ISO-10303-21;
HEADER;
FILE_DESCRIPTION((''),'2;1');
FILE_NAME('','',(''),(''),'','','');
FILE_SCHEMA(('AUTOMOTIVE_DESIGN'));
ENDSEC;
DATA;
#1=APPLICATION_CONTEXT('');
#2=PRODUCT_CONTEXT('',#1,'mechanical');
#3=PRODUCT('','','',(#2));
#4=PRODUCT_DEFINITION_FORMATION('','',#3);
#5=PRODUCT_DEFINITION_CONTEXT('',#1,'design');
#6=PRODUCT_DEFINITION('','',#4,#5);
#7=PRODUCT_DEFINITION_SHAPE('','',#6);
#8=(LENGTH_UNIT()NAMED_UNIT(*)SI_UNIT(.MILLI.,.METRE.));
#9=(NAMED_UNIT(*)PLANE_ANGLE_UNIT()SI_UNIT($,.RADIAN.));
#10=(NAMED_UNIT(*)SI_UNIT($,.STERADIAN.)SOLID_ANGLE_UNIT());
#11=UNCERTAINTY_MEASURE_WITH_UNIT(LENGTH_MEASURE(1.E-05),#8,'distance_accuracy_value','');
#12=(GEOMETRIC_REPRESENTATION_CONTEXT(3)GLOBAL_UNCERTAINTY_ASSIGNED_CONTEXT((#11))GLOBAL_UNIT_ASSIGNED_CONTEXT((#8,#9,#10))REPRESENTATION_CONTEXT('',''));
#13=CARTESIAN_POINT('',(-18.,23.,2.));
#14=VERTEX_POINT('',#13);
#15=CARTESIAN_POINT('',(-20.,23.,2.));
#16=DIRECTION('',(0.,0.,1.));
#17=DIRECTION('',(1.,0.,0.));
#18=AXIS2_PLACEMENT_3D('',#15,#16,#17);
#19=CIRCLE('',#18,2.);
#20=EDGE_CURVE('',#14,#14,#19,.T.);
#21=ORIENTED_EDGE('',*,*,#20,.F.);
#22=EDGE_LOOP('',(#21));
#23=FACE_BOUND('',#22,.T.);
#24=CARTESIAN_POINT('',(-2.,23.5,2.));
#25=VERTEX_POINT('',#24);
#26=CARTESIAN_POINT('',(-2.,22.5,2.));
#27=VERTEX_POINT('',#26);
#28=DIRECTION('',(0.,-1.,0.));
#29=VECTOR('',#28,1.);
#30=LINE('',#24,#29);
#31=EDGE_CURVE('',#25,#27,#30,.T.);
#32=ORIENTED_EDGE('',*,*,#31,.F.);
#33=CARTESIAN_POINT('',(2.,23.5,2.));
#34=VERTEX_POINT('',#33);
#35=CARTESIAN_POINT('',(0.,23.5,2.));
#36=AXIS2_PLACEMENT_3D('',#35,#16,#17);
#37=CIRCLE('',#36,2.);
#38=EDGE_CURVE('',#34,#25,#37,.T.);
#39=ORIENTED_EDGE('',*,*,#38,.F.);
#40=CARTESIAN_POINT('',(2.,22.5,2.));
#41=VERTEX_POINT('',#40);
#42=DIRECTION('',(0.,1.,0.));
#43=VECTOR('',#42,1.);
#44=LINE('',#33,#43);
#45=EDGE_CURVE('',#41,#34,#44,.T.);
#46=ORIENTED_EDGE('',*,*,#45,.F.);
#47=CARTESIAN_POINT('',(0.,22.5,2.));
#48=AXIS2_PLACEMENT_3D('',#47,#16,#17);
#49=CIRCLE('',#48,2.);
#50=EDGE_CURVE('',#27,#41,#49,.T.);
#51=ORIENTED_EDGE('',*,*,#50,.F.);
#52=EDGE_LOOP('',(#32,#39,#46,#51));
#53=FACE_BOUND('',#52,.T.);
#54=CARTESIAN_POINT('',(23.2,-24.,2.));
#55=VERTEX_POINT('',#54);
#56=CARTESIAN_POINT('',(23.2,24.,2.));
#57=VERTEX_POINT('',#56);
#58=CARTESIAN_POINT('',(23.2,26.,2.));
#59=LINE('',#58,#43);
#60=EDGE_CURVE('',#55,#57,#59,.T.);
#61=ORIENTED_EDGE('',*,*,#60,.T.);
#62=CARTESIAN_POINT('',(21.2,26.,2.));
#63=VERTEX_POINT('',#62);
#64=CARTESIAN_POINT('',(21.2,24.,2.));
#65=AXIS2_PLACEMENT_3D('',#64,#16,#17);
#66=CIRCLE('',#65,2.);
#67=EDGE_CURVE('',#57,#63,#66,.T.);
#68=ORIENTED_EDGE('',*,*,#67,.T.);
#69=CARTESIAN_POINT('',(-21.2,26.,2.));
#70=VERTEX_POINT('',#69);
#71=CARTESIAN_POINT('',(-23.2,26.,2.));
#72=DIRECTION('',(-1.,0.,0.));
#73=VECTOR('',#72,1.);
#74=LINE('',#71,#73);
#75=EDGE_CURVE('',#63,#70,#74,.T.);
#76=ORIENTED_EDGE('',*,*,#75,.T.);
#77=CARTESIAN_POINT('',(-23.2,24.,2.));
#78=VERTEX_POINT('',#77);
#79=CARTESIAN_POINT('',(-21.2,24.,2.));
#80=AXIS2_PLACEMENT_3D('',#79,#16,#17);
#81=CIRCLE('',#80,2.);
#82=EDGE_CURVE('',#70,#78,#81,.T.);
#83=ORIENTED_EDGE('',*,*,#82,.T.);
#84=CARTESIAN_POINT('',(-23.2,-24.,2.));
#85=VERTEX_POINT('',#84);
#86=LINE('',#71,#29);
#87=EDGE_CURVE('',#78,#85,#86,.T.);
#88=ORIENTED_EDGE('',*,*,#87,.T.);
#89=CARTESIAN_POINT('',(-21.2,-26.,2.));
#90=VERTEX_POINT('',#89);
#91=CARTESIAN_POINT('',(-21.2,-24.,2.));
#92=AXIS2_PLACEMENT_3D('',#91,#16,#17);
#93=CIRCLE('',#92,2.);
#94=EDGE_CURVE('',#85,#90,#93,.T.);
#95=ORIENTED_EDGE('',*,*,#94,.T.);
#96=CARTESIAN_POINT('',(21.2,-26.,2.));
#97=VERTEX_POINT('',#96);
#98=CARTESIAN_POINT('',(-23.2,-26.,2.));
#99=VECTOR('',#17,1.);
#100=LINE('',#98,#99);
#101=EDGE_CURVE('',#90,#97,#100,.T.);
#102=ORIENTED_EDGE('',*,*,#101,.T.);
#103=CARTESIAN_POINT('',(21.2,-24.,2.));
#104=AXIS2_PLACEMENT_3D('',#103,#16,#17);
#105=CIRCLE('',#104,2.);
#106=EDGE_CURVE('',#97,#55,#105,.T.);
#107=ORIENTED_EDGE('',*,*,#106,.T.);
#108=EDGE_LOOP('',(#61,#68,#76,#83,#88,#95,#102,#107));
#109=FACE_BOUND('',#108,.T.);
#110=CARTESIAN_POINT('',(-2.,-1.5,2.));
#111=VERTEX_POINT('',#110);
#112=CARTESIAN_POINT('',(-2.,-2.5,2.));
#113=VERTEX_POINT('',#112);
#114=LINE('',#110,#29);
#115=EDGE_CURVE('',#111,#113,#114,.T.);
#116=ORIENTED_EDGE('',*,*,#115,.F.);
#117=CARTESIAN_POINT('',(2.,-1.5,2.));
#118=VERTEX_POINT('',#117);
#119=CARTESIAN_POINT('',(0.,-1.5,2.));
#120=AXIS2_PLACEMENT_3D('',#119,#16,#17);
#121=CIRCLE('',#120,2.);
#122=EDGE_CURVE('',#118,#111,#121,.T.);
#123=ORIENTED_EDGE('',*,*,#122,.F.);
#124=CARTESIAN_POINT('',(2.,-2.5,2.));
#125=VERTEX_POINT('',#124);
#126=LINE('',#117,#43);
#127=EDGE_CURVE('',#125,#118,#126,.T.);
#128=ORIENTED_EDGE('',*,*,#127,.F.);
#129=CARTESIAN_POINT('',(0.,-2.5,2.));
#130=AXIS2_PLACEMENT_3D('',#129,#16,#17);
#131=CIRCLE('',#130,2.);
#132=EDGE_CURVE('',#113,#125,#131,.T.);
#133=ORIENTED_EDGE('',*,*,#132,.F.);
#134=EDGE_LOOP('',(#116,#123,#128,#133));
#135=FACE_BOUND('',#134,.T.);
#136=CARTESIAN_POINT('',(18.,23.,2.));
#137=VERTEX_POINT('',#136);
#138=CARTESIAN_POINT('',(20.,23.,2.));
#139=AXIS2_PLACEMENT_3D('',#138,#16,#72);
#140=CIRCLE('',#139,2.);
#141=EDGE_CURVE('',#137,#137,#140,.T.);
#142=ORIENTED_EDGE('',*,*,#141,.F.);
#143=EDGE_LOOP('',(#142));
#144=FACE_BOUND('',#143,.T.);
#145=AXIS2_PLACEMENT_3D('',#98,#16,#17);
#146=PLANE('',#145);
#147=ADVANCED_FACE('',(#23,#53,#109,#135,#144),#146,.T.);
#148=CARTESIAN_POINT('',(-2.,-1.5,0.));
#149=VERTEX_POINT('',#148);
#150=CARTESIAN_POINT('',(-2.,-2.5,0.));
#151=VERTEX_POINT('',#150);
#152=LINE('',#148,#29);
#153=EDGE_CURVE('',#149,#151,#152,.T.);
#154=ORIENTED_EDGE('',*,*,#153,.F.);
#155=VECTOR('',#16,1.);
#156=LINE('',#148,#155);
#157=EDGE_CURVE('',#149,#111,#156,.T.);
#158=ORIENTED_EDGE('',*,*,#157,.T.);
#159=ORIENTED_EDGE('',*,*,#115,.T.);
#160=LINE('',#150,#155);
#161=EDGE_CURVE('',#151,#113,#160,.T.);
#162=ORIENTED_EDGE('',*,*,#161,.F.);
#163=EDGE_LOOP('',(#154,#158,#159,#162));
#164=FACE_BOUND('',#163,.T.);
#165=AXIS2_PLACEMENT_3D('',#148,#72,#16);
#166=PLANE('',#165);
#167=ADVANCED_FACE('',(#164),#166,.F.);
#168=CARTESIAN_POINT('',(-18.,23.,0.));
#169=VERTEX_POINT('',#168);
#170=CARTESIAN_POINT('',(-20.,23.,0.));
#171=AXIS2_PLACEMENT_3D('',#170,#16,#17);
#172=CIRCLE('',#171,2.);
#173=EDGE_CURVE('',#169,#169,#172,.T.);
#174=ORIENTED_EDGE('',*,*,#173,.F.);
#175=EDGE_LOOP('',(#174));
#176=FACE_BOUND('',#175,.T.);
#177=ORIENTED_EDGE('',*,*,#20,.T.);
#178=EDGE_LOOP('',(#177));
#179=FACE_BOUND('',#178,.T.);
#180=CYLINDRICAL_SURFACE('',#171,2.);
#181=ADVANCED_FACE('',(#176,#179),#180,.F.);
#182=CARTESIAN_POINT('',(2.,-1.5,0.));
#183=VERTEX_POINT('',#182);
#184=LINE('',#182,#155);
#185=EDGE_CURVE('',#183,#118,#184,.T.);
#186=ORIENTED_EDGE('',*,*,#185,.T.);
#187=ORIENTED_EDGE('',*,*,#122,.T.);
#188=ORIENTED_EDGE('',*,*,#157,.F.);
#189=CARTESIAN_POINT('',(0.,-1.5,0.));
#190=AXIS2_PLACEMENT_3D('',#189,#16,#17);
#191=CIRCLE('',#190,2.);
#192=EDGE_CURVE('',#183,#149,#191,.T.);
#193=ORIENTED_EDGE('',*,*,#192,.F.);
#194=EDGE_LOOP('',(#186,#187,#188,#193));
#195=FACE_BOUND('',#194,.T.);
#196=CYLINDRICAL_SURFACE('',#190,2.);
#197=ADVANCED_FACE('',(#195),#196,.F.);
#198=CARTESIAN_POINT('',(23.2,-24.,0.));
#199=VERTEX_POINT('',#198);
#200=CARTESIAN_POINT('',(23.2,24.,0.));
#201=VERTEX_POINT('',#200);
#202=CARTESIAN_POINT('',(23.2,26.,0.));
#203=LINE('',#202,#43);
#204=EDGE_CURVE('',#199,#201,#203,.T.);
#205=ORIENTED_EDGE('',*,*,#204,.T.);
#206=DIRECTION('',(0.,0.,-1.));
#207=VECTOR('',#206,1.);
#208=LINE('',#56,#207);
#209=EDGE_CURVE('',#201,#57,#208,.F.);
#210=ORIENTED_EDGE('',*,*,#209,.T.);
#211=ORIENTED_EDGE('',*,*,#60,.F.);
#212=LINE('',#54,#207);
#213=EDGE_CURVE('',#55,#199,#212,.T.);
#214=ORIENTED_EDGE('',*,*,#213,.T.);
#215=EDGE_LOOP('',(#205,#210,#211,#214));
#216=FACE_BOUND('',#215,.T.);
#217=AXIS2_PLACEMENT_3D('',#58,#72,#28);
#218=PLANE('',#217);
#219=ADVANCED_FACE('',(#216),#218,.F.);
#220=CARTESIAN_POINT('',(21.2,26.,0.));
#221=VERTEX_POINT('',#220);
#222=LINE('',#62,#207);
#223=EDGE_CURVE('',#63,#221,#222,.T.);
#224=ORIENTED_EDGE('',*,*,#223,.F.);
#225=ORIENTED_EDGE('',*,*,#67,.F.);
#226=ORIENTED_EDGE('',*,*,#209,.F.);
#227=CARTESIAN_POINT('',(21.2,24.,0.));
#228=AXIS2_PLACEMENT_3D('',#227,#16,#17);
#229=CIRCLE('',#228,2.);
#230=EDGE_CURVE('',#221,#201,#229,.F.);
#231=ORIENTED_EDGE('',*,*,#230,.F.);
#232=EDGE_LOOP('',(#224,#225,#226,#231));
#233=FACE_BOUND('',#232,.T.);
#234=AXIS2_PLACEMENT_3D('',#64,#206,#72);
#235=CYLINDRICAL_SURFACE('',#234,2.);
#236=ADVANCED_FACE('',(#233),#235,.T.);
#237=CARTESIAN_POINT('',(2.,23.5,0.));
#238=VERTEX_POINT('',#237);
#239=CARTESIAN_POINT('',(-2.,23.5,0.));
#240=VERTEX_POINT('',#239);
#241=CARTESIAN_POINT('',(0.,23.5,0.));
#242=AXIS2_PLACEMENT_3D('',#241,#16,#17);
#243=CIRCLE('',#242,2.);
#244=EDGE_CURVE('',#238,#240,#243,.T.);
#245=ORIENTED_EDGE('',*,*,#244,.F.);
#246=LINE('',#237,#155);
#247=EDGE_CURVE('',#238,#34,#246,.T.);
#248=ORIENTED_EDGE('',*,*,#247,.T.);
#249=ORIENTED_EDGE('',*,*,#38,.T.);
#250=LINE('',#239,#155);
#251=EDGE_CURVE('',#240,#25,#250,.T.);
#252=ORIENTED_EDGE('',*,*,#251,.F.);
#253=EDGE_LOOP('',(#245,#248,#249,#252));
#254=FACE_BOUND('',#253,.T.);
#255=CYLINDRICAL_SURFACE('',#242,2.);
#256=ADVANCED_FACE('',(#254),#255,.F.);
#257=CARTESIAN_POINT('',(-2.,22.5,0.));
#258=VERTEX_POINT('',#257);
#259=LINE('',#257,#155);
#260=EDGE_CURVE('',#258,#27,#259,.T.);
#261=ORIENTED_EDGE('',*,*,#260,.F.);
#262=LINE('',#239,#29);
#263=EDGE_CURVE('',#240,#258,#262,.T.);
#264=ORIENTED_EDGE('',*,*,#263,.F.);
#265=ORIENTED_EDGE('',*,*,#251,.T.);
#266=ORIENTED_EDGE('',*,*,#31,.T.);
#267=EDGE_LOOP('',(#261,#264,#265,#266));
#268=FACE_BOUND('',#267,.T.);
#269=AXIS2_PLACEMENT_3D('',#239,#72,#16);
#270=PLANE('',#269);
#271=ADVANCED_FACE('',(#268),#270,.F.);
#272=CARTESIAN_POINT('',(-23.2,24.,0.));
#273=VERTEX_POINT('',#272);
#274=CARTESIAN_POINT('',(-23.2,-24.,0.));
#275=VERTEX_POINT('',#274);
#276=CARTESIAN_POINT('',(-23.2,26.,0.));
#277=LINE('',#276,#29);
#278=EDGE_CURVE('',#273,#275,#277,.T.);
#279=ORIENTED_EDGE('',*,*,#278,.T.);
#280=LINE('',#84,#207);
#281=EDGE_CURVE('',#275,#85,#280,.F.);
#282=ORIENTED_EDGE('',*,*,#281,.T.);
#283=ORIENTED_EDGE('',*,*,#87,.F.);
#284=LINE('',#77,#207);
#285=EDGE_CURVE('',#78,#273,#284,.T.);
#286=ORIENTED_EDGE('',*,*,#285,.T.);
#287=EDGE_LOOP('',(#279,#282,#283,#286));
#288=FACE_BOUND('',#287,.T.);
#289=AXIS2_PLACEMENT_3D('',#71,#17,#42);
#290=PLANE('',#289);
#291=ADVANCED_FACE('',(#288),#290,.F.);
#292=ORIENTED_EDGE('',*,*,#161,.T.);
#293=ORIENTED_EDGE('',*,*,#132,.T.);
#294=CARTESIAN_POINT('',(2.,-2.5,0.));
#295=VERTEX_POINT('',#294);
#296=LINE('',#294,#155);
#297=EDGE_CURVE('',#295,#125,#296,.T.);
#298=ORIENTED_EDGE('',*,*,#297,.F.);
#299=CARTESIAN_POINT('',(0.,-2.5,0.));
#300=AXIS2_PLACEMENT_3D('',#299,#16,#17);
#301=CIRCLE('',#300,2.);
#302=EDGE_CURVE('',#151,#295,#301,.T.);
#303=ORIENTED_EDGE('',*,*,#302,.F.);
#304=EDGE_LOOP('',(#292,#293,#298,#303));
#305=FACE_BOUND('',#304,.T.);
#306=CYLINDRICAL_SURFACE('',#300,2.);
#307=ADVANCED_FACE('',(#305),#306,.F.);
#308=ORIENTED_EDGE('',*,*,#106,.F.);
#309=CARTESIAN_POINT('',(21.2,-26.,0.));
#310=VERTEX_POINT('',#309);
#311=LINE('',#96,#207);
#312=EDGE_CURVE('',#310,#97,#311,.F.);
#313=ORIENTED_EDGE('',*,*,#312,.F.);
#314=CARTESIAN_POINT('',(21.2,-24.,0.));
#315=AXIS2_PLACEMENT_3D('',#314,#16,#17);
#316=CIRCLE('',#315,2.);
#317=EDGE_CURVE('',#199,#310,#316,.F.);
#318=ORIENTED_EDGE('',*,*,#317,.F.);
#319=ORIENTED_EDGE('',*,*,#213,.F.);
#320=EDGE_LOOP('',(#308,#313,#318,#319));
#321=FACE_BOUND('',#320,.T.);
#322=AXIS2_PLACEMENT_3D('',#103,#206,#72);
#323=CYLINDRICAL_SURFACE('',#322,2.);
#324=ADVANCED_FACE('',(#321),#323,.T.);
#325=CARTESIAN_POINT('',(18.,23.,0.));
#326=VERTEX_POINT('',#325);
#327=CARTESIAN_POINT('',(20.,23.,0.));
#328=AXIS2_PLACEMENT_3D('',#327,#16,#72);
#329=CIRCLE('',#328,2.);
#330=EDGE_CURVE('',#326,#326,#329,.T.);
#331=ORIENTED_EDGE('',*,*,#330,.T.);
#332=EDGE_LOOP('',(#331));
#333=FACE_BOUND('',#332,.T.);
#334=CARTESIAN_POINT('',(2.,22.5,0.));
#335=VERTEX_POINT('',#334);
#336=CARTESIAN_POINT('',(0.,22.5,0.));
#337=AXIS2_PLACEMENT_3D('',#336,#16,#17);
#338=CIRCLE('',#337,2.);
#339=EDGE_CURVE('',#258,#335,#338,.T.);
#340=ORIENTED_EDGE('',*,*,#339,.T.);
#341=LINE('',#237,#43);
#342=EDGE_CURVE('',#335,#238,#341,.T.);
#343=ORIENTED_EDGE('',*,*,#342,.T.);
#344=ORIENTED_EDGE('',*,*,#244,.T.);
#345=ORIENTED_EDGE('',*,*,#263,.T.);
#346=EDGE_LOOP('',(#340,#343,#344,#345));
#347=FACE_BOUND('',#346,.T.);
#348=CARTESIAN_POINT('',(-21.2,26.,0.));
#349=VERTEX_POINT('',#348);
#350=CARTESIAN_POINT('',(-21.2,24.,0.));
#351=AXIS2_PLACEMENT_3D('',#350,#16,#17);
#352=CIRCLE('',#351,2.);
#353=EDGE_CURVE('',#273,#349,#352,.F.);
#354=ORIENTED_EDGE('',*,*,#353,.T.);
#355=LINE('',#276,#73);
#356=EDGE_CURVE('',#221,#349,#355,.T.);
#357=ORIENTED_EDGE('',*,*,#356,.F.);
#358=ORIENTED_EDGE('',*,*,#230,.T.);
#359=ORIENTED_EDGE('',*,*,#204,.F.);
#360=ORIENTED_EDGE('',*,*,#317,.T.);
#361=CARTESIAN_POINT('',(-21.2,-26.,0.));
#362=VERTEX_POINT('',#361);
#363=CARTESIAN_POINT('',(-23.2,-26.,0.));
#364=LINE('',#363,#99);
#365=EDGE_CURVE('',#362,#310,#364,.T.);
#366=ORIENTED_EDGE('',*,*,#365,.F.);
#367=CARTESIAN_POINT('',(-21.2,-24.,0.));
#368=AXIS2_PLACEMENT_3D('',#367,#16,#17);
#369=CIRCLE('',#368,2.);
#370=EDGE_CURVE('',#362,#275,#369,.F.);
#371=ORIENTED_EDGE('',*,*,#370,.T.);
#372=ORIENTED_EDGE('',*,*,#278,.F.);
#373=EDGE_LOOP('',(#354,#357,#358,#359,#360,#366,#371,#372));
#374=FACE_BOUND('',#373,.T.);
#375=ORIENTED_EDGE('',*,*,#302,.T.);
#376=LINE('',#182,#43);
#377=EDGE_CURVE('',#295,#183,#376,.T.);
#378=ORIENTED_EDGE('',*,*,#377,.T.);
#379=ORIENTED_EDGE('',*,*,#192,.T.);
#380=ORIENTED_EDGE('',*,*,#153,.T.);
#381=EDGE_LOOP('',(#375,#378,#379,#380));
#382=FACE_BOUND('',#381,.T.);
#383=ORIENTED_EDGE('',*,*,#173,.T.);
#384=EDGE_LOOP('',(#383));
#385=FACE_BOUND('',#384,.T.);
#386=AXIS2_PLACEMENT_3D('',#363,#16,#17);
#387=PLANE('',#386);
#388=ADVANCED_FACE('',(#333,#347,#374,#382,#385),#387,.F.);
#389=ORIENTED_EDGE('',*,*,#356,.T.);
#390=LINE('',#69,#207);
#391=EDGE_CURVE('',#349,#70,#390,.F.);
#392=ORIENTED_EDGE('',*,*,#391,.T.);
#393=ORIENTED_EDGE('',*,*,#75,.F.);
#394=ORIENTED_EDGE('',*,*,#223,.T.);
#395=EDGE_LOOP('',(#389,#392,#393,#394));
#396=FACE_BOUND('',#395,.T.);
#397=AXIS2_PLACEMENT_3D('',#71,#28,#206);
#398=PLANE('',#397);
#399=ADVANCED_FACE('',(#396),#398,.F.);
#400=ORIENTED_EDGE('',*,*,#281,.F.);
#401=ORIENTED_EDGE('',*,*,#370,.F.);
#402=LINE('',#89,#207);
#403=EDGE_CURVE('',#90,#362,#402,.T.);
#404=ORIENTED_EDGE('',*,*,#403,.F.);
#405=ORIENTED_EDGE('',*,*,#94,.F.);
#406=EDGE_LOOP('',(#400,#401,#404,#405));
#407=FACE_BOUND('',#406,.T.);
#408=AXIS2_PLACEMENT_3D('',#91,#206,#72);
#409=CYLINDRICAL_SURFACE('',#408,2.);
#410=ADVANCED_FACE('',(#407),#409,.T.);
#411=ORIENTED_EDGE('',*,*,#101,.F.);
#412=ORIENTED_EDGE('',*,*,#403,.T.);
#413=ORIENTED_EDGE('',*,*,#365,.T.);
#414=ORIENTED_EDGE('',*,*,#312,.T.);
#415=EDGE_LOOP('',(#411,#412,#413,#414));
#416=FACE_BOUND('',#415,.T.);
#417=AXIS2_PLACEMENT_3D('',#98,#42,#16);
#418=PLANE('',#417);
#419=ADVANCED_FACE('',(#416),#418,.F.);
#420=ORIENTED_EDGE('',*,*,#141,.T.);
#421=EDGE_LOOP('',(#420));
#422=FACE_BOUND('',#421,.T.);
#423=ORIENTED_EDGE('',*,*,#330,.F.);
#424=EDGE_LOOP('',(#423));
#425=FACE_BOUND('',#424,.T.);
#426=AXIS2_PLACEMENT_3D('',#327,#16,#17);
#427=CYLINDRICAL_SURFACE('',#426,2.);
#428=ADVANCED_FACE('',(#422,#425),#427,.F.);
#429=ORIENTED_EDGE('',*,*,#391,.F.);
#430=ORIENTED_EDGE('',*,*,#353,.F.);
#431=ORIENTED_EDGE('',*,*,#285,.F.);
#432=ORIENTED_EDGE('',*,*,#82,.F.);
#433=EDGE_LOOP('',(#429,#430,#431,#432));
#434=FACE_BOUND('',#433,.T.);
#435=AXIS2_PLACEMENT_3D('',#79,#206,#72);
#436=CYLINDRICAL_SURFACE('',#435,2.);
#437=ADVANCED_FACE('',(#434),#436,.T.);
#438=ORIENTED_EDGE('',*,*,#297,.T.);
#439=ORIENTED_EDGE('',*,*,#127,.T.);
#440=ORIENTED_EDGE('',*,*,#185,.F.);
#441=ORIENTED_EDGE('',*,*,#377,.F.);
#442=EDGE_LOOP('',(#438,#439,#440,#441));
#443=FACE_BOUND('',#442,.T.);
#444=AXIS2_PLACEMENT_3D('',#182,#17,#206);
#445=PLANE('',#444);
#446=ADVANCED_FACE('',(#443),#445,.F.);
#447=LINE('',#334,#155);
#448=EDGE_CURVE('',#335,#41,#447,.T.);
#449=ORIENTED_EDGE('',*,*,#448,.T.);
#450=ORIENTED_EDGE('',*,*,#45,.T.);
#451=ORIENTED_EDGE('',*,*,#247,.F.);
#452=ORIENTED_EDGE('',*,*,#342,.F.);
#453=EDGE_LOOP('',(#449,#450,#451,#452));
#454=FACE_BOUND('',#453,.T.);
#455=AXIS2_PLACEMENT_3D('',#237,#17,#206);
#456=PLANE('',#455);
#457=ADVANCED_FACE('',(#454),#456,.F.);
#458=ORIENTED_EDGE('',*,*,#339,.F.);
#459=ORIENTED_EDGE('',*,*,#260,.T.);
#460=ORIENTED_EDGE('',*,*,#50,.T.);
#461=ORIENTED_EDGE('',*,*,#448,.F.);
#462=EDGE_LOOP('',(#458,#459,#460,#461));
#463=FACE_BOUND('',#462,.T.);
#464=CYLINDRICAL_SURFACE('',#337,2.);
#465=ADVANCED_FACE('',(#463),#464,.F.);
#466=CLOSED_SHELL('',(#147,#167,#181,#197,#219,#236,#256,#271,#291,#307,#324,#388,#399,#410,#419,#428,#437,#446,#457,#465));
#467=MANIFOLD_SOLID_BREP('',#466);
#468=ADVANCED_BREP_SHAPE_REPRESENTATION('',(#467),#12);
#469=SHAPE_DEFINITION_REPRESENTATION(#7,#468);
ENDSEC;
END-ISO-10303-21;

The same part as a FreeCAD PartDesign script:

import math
import FreeCAD as App
import Part
import Sketcher

V = App.Vector


def edges_at(feature, points):
    """Names of the edges that pass closest to the given points."""
    edges = feature.Shape.Edges
    near = lambda p: min(range(len(edges)), key=lambda i: edges[i].distToShape(Part.Vertex(*p))[0])
    return sorted({f"Edge{near(p) + 1}" for p in points})

doc = App.newDocument("Part")
body = doc.addObject("PartDesign::Body", "Body")

# Sketch on XY plane
sketch1 = doc.addObject("Sketcher::SketchObject", "Sketch")
body.addObject(sketch1)
sketch1.AttachmentSupport = (doc.XY_Plane, [""])
sketch1.MapMode = "FlatFace"
sketch1.addGeometry([
    Part.LineSegment(V(-23, 26, 0), V(-23, -26, 0)),
    Part.LineSegment(V(-23, -26, 0), V(23, -26, 0)),
    Part.LineSegment(V(23, -26, 0), V(23, 26, 0)),
    Part.LineSegment(V(23, 26, 0), V(-23, 26, 0)),
], False)
sketch1.addConstraint([
    Sketcher.Constraint("Coincident", 0, 2, 1, 1),
    Sketcher.Constraint("Coincident", 1, 2, 2, 1),
    Sketcher.Constraint("Coincident", 2, 2, 3, 1),
    Sketcher.Constraint("Coincident", 3, 2, 0, 1),
    Sketcher.Constraint("Vertical", 0),
    Sketcher.Constraint("Horizontal", 1),
    Sketcher.Constraint("Vertical", 2),
    Sketcher.Constraint("Horizontal", 3),
    Sketcher.Constraint("Symmetric", 0, 2, 2, 2, -1, 1),
    Sketcher.Constraint("DistanceY", 0, 2, 0, 1, 52.0),
    Sketcher.Constraint("DistanceX", 1, 1, 1, 2, 46.4),
])
pad1 = doc.addObject("PartDesign::Pad", "Pad")
body.addObject(pad1)
pad1.Profile = sketch1
pad1.Length = 2

# Sketch on XY plane
sketch2 = doc.addObject("Sketcher::SketchObject", "Sketch001")
body.addObject(sketch2)
sketch2.AttachmentSupport = (doc.XY_Plane, [""])
sketch2.MapMode = "FlatFace"
sketch2.AttachmentOffset = App.Placement(V(0, 0, 2), App.Rotation())
sketch2.addGeometry([
    Part.Circle(V(-20, 23, 0), V(0, 0, 1), 2),
    Part.Circle(V(20, 23, 0), V(0, 0, 1), 2),
], False)
sketch2.addConstraint([
    Sketcher.Constraint("Equal", 0, 1),
    Sketcher.Constraint("Symmetric", 0, 3, 1, 3, -2),
    Sketcher.Constraint("Diameter", 0, 4.0),
    Sketcher.Constraint("DistanceX", 0, 3, -1, 1, 20.0),
    Sketcher.Constraint("DistanceY", -1, 1, 0, 3, 23.0),
])
pocket1 = doc.addObject("PartDesign::Pocket", "Pocket")
body.addObject(pocket1)
pocket1.Profile = sketch2
pocket1.Type = "ThroughAll"

# Sketch on XY plane
sketch3 = doc.addObject("Sketcher::SketchObject", "Sketch002")
body.addObject(sketch3)
sketch3.AttachmentSupport = (doc.XY_Plane, [""])
sketch3.MapMode = "FlatFace"
sketch3.AttachmentOffset = App.Placement(V(0, 0, 2), App.Rotation())
sketch3.addGeometry([
    Part.LineSegment(V(2, 22.5, 0), V(2, 23.5, 0)),  # 0
    Part.ArcOfCircle(Part.Circle(V(0, 23.5, 0), V(0, 0, 1), 2), math.radians(0), math.radians(180)),  # 1
    Part.LineSegment(V(-2, 23.5, 0), V(-2, 22.5, 0)),  # 2
    Part.ArcOfCircle(Part.Circle(V(0, 22.5, 0), V(0, 0, 1), 2), math.radians(180), math.radians(360)),  # 3
    Part.LineSegment(V(2, -2.5, 0), V(2, -1.5, 0)),  # 4
    Part.ArcOfCircle(Part.Circle(V(0, -1.5, 0), V(0, 0, 1), 2), math.radians(0), math.radians(180)),  # 5
    Part.LineSegment(V(-2, -1.5, 0), V(-2, -2.5, 0)),  # 6
    Part.ArcOfCircle(Part.Circle(V(0, -2.5, 0), V(0, 0, 1), 2), math.radians(180), math.radians(360)),  # 7
], False)
sketch3.addConstraint([
    Sketcher.Constraint("Tangent", 0, 2, 1, 1),
    Sketcher.Constraint("Tangent", 1, 2, 2, 1),
    Sketcher.Constraint("Tangent", 2, 2, 3, 1),
    Sketcher.Constraint("Tangent", 3, 2, 0, 1),
    Sketcher.Constraint("Tangent", 4, 2, 5, 1),
    Sketcher.Constraint("Tangent", 5, 2, 6, 1),
    Sketcher.Constraint("Tangent", 6, 2, 7, 1),
    Sketcher.Constraint("Tangent", 7, 2, 4, 1),
    Sketcher.Constraint("Vertical", 0),
    Sketcher.Constraint("Vertical", 2),
    Sketcher.Constraint("Vertical", 4),
    Sketcher.Constraint("Vertical", 6),
    Sketcher.Constraint("Equal", 3, 5),
    Sketcher.Constraint("PointOnObject", 1, 3, -2),
    Sketcher.Constraint("PointOnObject", 5, 3, -2),
    Sketcher.Constraint("Equal", 2, 4),
    Sketcher.Constraint("Radius", 1, 2.0),
    Sketcher.Constraint("DistanceY", 0, 1, 0, 2, 1.0),
    Sketcher.Constraint("DistanceY", 5, 3, 3, 3, 24.0),
    Sketcher.Constraint("DistanceY", -1, 1, 1, 3, 23.5),
])
pocket2 = doc.addObject("PartDesign::Pocket", "Pocket001")
body.addObject(pocket2)
pocket2.Profile = sketch3
pocket2.Type = "ThroughAll"
doc.recompute()

fillet = doc.addObject("PartDesign::Fillet", "Fillet")
body.addObject(fillet)
fillet.Base = (pocket2, edges_at(pocket2, [
    (-23.2, 26, 1),
    (23.2, 26, 1),
    (23.2, -26, 1),
    (-23.2, -26, 1),
]))
fillet.Radius = 2

doc.recompute()
